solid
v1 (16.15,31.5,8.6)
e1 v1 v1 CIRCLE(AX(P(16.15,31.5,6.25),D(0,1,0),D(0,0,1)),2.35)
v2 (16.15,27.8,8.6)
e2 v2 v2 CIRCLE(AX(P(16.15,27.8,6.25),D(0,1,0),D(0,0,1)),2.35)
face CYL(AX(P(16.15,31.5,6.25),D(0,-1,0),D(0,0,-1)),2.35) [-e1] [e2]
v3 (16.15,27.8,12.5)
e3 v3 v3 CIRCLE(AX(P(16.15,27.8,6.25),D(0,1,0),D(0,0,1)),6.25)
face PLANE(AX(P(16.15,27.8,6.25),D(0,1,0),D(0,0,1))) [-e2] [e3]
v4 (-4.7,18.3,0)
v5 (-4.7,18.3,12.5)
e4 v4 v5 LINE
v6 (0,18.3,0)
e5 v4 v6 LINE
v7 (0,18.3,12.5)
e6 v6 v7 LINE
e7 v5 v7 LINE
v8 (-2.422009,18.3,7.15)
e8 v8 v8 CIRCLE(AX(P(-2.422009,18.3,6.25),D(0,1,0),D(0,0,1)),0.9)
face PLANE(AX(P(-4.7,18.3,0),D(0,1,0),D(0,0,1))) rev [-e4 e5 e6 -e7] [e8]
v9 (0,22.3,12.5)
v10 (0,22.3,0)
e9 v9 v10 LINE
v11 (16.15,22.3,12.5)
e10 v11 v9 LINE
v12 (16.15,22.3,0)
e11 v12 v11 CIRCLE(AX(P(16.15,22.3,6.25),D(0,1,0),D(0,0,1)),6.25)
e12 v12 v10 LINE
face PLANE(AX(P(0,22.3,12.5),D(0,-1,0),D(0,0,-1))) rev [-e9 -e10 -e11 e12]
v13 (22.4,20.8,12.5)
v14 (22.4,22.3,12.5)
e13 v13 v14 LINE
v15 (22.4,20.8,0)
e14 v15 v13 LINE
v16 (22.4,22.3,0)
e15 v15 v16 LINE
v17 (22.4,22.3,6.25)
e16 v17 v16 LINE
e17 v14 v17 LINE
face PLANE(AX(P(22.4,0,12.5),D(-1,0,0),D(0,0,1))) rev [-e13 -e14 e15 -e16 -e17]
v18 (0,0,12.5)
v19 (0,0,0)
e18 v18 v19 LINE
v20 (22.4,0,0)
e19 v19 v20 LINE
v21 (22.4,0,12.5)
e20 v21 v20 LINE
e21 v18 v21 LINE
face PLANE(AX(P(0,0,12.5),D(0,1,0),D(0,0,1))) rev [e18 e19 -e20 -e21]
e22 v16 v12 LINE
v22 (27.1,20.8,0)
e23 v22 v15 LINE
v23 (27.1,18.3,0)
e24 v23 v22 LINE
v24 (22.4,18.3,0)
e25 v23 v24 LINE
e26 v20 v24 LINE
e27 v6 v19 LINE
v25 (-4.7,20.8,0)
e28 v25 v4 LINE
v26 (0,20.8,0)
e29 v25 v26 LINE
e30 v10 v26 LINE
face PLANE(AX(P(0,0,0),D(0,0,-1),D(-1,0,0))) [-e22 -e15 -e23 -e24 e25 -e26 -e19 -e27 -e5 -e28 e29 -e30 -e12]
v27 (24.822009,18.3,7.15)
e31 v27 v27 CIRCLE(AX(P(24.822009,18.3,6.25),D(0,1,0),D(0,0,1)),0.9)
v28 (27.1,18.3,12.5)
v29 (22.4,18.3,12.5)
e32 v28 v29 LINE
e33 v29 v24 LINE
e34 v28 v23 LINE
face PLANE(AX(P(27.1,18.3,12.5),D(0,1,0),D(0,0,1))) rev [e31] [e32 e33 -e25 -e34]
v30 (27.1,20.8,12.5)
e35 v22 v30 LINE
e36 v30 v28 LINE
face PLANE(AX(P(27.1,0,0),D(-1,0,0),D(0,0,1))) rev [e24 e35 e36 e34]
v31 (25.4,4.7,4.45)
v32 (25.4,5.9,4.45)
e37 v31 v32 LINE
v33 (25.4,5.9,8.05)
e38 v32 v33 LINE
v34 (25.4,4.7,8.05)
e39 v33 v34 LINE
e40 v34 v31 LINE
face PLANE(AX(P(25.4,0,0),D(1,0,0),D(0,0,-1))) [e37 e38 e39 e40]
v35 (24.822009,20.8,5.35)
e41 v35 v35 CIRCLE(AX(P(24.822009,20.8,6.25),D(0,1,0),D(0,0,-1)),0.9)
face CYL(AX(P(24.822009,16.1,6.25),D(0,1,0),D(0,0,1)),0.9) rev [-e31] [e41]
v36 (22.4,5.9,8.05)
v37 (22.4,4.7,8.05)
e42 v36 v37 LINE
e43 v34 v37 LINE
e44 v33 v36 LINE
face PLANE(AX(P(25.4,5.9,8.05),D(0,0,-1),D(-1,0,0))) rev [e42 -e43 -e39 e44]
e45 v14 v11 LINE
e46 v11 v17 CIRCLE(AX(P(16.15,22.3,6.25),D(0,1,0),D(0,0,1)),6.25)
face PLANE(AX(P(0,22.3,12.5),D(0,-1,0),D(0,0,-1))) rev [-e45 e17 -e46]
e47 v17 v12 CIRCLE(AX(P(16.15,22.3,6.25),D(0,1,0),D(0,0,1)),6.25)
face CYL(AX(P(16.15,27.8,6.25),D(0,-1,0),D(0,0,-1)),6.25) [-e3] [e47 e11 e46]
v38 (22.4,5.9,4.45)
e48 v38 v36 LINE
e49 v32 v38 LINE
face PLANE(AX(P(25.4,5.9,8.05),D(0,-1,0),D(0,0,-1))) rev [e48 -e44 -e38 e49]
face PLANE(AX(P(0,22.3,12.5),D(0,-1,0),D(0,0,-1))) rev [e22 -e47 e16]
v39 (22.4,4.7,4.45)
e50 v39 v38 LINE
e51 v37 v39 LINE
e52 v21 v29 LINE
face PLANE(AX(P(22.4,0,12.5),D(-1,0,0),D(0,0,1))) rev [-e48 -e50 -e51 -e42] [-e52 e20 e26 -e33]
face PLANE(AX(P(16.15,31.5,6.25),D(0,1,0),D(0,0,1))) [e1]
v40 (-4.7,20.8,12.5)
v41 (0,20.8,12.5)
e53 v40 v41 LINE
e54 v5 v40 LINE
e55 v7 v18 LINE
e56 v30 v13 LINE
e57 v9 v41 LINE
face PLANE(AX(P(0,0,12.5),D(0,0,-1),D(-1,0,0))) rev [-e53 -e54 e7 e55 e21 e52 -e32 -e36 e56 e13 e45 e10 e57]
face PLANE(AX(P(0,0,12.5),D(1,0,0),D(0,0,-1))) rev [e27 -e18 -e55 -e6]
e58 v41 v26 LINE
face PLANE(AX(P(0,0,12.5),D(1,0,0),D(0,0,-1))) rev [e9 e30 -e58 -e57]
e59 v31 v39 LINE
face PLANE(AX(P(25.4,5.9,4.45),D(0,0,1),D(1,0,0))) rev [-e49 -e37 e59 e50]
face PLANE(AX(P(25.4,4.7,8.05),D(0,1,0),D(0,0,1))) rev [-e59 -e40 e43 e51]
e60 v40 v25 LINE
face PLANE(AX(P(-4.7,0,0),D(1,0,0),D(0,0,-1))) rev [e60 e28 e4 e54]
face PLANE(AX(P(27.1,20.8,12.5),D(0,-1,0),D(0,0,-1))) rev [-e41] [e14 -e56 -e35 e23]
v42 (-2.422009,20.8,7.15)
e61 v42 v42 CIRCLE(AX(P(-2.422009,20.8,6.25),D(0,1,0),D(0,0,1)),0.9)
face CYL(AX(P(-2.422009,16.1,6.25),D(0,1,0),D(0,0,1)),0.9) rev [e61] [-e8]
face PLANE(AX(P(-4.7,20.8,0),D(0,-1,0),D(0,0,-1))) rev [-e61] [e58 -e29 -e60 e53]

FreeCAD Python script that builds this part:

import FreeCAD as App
import Part
import Sketcher

doc = App.newDocument("Part")
body = doc.addObject("PartDesign::Body", "Body")

sketch1 = doc.addObject("Sketcher::SketchObject", "Sketch")
body.addObject(sketch1)
sketch1.AttachmentSupport = (doc.XY_Plane, [""])
sketch1.MapMode = "FlatFace"
sketch1.addGeometry(Part.LineSegment(App.Vector(0, 22, 0), App.Vector(0, 0, 0)), False)
sketch1.addGeometry(Part.LineSegment(App.Vector(0, 0, 0), App.Vector(22, 0, 0)), False)
sketch1.addGeometry(Part.LineSegment(App.Vector(22, 0, 0), App.Vector(22, 22, 0)), False)
sketch1.addGeometry(Part.LineSegment(App.Vector(22, 22, 0), App.Vector(0, 22, 0)), False)
sketch1.addConstraint(Sketcher.Constraint("Coincident", 0, 2, 1, 1))
sketch1.addConstraint(Sketcher.Constraint("Coincident", 1, 2, 2, 1))
sketch1.addConstraint(Sketcher.Constraint("Coincident", 2, 2, 3, 1))
sketch1.addConstraint(Sketcher.Constraint("Coincident", 3, 2, 0, 1))
sketch1.addConstraint(Sketcher.Constraint("Vertical", 0))
sketch1.addConstraint(Sketcher.Constraint("Horizontal", 1))
sketch1.addConstraint(Sketcher.Constraint("Vertical", 2))
sketch1.addConstraint(Sketcher.Constraint("Horizontal", 3))
sketch1.addConstraint(Sketcher.Constraint("Coincident", 0, 2, -1, 1))
sketch1.addConstraint(Sketcher.Constraint("DistanceX", 1, 1, 1, 2, 22.4))
sketch1.addConstraint(Sketcher.Constraint("DistanceY", 0, 2, 0, 1, 22.3))
pad1 = doc.addObject("PartDesign::Pad", "Pad")
body.addObject(pad1)
pad1.Profile = sketch1
pad1.Length = 12.5

sketch2 = doc.addObject("Sketcher::SketchObject", "Sketch001")
body.addObject(sketch2)
sketch2.AttachmentSupport = (doc.XZ_Plane, [""])
sketch2.MapMode = "FlatFace"
sketch2.AttachmentOffset = App.Placement(App.Vector(0, 0, -22.3), App.Rotation())
sketch2.addGeometry(Part.Circle(App.Vector(16, 6, 0), App.Vector(0, 0, 1), 6), False)
sketch2.addConstraint(Sketcher.Constraint("Diameter", 0, 12.5))
sketch2.addConstraint(Sketcher.Constraint("DistanceX", -1, 1, 0, 3, 16.15))
sketch2.addConstraint(Sketcher.Constraint("DistanceY", -1, 1, 0, 3, 6.25))
pad2 = doc.addObject("PartDesign::Pad", "Pad001")
body.addObject(pad2)
pad2.Profile = sketch2
pad2.Length = 5.5
pad2.Reversed = True

sketch3 = doc.addObject("Sketcher::SketchObject", "Sketch002")
body.addObject(sketch3)
sketch3.AttachmentSupport = (doc.XZ_Plane, [""])
sketch3.MapMode = "FlatFace"
sketch3.AttachmentOffset = App.Placement(App.Vector(0, 0, -27.8), App.Rotation())
sketch3.addGeometry(Part.Circle(App.Vector(16.1, 6.2, 0), App.Vector(0, 0, 1), 2.4), False)
sketch3.addConstraint(Sketcher.Constraint("Diameter", 0, 4.7))
sketch3.addConstraint(Sketcher.Constraint("DistanceX", -1, 1, 0, 3, 16.15))
sketch3.addConstraint(Sketcher.Constraint("DistanceY", -1, 1, 0, 3, 6.25))
pad3 = doc.addObject("PartDesign::Pad", "Pad002")
body.addObject(pad3)
pad3.Profile = sketch3
pad3.Length = 3.7
pad3.Reversed = True

sketch4 = doc.addObject("Sketcher::SketchObject", "Sketch003")
body.addObject(sketch4)
sketch4.AttachmentSupport = (doc.YZ_Plane, [""])
sketch4.MapMode = "FlatFace"
sketch4.AttachmentOffset = App.Placement(App.Vector(0, 0, 22.4), App.Rotation())
sketch4.addGeometry(Part.LineSegment(App.Vector(20.8, 12.5, 0), App.Vector(18.3, 12.5, 0)), False)
sketch4.addGeometry(Part.LineSegment(App.Vector(18.3, 12.5, 0), App.Vector(18.3, 0, 0)), False)
sketch4.addGeometry(Part.LineSegment(App.Vector(18.3, 0, 0), App.Vector(20.8, 0, 0)), False)
sketch4.addGeometry(Part.LineSegment(App.Vector(20.8, 0, 0), App.Vector(20.8, 12.5, 0)), False)
sketch4.addConstraint(Sketcher.Constraint("Coincident", 0, 2, 1, 1))
sketch4.addConstraint(Sketcher.Constraint("Coincident", 1, 2, 2, 1))
sketch4.addConstraint(Sketcher.Constraint("Coincident", 2, 2, 3, 1))
sketch4.addConstraint(Sketcher.Constraint("Coincident", 3, 2, 0, 1))
sketch4.addConstraint(Sketcher.Constraint("Horizontal", 0))
sketch4.addConstraint(Sketcher.Constraint("Vertical", 1))
sketch4.addConstraint(Sketcher.Constraint("Horizontal", 2))
sketch4.addConstraint(Sketcher.Constraint("Vertical", 3))
sketch4.addConstraint(Sketcher.Constraint("PointOnObject", 1, 2, -1))
sketch4.addConstraint(Sketcher.Constraint("DistanceX", 0, 2, 0, 1, 2.5))
sketch4.addConstraint(Sketcher.Constraint("DistanceY", 1, 2, 1, 1, 12.5))
sketch4.addConstraint(Sketcher.Constraint("DistanceX", -1, 1, 0, 2, 18.3))
pad4 = doc.addObject("PartDesign::Pad", "Pad003")
body.addObject(pad4)
pad4.Profile = sketch4
pad4.Length = 4.7

sketch5 = doc.addObject("Sketcher::SketchObject", "Sketch004")
body.addObject(sketch5)
sketch5.AttachmentSupport = (doc.YZ_Plane, [""])
sketch5.MapMode = "FlatFace"
sketch5.addGeometry(Part.LineSegment(App.Vector(20.8, 0, 0), App.Vector(18.3, 0, 0)), False)
sketch5.addGeometry(Part.LineSegment(App.Vector(18.3, 0, 0), App.Vector(18.3, 12.5, 0)), False)
sketch5.addGeometry(Part.LineSegment(App.Vector(18.3, 12.5, 0), App.Vector(20.8, 12.5, 0)), False)
sketch5.addGeometry(Part.LineSegment(App.Vector(20.8, 12.5, 0), App.Vector(20.8, 0, 0)), False)
sketch5.addConstraint(Sketcher.Constraint("Coincident", 0, 2, 1, 1))
sketch5.addConstraint(Sketcher.Constraint("Coincident", 1, 2, 2, 1))
sketch5.addConstraint(Sketcher.Constraint("Coincident", 2, 2, 3, 1))
sketch5.addConstraint(Sketcher.Constraint("Coincident", 3, 2, 0, 1))
sketch5.addConstraint(Sketcher.Constraint("Horizontal", 0))
sketch5.addConstraint(Sketcher.Constraint("Vertical", 1))
sketch5.addConstraint(Sketcher.Constraint("Horizontal", 2))
sketch5.addConstraint(Sketcher.Constraint("Vertical", 3))
sketch5.addConstraint(Sketcher.Constraint("PointOnObject", 0, 2, -1))
sketch5.addConstraint(Sketcher.Constraint("DistanceX", 0, 2, 0, 1, 2.5))
sketch5.addConstraint(Sketcher.Constraint("DistanceY", 1, 1, 1, 2, 12.5))
sketch5.addConstraint(Sketcher.Constraint("DistanceX", -1, 1, 0, 2, 18.3))
pad5 = doc.addObject("PartDesign::Pad", "Pad004")
body.addObject(pad5)
pad5.Profile = sketch5
pad5.Length = 4.7
pad5.Reversed = True

sketch6 = doc.addObject("Sketcher::SketchObject", "Sketch005")
body.addObject(sketch6)
sketch6.AttachmentSupport = (doc.XZ_Plane, [""])
sketch6.MapMode = "FlatFace"
sketch6.AttachmentOffset = App.Placement(App.Vector(0, 0, -20.8), App.Rotation())
sketch6.addGeometry(Part.Circle(App.Vector(-2.4, 6.2, 0), App.Vector(0, 0, 1), 0.9), False)
sketch6.addGeometry(Part.Circle(App.Vector(24.8, 6.2, 0), App.Vector(0, 0, 1), 0.9), False)
sketch6.addConstraint(Sketcher.Constraint("Equal", 0, 1))
sketch6.addConstraint(Sketcher.Constraint("Horizontal", 0, 3, 1, 3))
sketch6.addConstraint(Sketcher.Constraint("Diameter", 0, 1.8))
sketch6.addConstraint(Sketcher.Constraint("DistanceY", -1, 1, 0, 3, 6.25))
sketch6.addConstraint(Sketcher.Constraint("DistanceX", 0, 3, -1, 1, 2.422009))
sketch6.addConstraint(Sketcher.Constraint("DistanceX", -1, 1, 1, 3, 24.822009))
pocket1 = doc.addObject("PartDesign::Pocket", "Pocket")
body.addObject(pocket1)
pocket1.Profile = sketch6
pocket1.Length = 4.7
pocket1.Reversed = True

sketch7 = doc.addObject("Sketcher::SketchObject", "Sketch006")
body.addObject(sketch7)
sketch7.AttachmentSupport = (doc.YZ_Plane, [""])
sketch7.MapMode = "FlatFace"
sketch7.AttachmentOffset = App.Placement(App.Vector(0, 0, 22.4), App.Rotation())
sketch7.addGeometry(Part.LineSegment(App.Vector(5.9, 8.1, 0), App.Vector(4.7, 8.1, 0)), False)
sketch7.addGeometry(Part.LineSegment(App.Vector(4.7, 8.1, 0), App.Vector(4.7, 4.5, 0)), False)
sketch7.addGeometry(Part.LineSegment(App.Vector(4.7, 4.5, 0), App.Vector(5.9, 4.5, 0)), False)
sketch7.addGeometry(Part.LineSegment(App.Vector(5.9, 4.5, 0), App.Vector(5.9, 8.1, 0)), False)
sketch7.addConstraint(Sketcher.Constraint("Coincident", 0, 2, 1, 1))
sketch7.addConstraint(Sketcher.Constraint("Coincident", 1, 2, 2, 1))
sketch7.addConstraint(Sketcher.Constraint("Coincident", 2, 2, 3, 1))
sketch7.addConstraint(Sketcher.Constraint("Coincident", 3, 2, 0, 1))
sketch7.addConstraint(Sketcher.Constraint("Horizontal", 0))
sketch7.addConstraint(Sketcher.Constraint("Vertical", 1))
sketch7.addConstraint(Sketcher.Constraint("Horizontal", 2))
sketch7.addConstraint(Sketcher.Constraint("Vertical", 3))
sketch7.addConstraint(Sketcher.Constraint("DistanceX", 0, 2, 0, 1, 1.2))
sketch7.addConstraint(Sketcher.Constraint("DistanceY", 1, 2, 1, 1, 3.6))
sketch7.addConstraint(Sketcher.Constraint("DistanceX", -1, 1, 0, 2, 4.7))
sketch7.addConstraint(Sketcher.Constraint("DistanceY", -1, 1, 0, 2, 8.05))
pad6 = doc.addObject("PartDesign::Pad", "Pad005")
body.addObject(pad6)
pad6.Profile = sketch7
pad6.Length = 3

doc.recompute()
